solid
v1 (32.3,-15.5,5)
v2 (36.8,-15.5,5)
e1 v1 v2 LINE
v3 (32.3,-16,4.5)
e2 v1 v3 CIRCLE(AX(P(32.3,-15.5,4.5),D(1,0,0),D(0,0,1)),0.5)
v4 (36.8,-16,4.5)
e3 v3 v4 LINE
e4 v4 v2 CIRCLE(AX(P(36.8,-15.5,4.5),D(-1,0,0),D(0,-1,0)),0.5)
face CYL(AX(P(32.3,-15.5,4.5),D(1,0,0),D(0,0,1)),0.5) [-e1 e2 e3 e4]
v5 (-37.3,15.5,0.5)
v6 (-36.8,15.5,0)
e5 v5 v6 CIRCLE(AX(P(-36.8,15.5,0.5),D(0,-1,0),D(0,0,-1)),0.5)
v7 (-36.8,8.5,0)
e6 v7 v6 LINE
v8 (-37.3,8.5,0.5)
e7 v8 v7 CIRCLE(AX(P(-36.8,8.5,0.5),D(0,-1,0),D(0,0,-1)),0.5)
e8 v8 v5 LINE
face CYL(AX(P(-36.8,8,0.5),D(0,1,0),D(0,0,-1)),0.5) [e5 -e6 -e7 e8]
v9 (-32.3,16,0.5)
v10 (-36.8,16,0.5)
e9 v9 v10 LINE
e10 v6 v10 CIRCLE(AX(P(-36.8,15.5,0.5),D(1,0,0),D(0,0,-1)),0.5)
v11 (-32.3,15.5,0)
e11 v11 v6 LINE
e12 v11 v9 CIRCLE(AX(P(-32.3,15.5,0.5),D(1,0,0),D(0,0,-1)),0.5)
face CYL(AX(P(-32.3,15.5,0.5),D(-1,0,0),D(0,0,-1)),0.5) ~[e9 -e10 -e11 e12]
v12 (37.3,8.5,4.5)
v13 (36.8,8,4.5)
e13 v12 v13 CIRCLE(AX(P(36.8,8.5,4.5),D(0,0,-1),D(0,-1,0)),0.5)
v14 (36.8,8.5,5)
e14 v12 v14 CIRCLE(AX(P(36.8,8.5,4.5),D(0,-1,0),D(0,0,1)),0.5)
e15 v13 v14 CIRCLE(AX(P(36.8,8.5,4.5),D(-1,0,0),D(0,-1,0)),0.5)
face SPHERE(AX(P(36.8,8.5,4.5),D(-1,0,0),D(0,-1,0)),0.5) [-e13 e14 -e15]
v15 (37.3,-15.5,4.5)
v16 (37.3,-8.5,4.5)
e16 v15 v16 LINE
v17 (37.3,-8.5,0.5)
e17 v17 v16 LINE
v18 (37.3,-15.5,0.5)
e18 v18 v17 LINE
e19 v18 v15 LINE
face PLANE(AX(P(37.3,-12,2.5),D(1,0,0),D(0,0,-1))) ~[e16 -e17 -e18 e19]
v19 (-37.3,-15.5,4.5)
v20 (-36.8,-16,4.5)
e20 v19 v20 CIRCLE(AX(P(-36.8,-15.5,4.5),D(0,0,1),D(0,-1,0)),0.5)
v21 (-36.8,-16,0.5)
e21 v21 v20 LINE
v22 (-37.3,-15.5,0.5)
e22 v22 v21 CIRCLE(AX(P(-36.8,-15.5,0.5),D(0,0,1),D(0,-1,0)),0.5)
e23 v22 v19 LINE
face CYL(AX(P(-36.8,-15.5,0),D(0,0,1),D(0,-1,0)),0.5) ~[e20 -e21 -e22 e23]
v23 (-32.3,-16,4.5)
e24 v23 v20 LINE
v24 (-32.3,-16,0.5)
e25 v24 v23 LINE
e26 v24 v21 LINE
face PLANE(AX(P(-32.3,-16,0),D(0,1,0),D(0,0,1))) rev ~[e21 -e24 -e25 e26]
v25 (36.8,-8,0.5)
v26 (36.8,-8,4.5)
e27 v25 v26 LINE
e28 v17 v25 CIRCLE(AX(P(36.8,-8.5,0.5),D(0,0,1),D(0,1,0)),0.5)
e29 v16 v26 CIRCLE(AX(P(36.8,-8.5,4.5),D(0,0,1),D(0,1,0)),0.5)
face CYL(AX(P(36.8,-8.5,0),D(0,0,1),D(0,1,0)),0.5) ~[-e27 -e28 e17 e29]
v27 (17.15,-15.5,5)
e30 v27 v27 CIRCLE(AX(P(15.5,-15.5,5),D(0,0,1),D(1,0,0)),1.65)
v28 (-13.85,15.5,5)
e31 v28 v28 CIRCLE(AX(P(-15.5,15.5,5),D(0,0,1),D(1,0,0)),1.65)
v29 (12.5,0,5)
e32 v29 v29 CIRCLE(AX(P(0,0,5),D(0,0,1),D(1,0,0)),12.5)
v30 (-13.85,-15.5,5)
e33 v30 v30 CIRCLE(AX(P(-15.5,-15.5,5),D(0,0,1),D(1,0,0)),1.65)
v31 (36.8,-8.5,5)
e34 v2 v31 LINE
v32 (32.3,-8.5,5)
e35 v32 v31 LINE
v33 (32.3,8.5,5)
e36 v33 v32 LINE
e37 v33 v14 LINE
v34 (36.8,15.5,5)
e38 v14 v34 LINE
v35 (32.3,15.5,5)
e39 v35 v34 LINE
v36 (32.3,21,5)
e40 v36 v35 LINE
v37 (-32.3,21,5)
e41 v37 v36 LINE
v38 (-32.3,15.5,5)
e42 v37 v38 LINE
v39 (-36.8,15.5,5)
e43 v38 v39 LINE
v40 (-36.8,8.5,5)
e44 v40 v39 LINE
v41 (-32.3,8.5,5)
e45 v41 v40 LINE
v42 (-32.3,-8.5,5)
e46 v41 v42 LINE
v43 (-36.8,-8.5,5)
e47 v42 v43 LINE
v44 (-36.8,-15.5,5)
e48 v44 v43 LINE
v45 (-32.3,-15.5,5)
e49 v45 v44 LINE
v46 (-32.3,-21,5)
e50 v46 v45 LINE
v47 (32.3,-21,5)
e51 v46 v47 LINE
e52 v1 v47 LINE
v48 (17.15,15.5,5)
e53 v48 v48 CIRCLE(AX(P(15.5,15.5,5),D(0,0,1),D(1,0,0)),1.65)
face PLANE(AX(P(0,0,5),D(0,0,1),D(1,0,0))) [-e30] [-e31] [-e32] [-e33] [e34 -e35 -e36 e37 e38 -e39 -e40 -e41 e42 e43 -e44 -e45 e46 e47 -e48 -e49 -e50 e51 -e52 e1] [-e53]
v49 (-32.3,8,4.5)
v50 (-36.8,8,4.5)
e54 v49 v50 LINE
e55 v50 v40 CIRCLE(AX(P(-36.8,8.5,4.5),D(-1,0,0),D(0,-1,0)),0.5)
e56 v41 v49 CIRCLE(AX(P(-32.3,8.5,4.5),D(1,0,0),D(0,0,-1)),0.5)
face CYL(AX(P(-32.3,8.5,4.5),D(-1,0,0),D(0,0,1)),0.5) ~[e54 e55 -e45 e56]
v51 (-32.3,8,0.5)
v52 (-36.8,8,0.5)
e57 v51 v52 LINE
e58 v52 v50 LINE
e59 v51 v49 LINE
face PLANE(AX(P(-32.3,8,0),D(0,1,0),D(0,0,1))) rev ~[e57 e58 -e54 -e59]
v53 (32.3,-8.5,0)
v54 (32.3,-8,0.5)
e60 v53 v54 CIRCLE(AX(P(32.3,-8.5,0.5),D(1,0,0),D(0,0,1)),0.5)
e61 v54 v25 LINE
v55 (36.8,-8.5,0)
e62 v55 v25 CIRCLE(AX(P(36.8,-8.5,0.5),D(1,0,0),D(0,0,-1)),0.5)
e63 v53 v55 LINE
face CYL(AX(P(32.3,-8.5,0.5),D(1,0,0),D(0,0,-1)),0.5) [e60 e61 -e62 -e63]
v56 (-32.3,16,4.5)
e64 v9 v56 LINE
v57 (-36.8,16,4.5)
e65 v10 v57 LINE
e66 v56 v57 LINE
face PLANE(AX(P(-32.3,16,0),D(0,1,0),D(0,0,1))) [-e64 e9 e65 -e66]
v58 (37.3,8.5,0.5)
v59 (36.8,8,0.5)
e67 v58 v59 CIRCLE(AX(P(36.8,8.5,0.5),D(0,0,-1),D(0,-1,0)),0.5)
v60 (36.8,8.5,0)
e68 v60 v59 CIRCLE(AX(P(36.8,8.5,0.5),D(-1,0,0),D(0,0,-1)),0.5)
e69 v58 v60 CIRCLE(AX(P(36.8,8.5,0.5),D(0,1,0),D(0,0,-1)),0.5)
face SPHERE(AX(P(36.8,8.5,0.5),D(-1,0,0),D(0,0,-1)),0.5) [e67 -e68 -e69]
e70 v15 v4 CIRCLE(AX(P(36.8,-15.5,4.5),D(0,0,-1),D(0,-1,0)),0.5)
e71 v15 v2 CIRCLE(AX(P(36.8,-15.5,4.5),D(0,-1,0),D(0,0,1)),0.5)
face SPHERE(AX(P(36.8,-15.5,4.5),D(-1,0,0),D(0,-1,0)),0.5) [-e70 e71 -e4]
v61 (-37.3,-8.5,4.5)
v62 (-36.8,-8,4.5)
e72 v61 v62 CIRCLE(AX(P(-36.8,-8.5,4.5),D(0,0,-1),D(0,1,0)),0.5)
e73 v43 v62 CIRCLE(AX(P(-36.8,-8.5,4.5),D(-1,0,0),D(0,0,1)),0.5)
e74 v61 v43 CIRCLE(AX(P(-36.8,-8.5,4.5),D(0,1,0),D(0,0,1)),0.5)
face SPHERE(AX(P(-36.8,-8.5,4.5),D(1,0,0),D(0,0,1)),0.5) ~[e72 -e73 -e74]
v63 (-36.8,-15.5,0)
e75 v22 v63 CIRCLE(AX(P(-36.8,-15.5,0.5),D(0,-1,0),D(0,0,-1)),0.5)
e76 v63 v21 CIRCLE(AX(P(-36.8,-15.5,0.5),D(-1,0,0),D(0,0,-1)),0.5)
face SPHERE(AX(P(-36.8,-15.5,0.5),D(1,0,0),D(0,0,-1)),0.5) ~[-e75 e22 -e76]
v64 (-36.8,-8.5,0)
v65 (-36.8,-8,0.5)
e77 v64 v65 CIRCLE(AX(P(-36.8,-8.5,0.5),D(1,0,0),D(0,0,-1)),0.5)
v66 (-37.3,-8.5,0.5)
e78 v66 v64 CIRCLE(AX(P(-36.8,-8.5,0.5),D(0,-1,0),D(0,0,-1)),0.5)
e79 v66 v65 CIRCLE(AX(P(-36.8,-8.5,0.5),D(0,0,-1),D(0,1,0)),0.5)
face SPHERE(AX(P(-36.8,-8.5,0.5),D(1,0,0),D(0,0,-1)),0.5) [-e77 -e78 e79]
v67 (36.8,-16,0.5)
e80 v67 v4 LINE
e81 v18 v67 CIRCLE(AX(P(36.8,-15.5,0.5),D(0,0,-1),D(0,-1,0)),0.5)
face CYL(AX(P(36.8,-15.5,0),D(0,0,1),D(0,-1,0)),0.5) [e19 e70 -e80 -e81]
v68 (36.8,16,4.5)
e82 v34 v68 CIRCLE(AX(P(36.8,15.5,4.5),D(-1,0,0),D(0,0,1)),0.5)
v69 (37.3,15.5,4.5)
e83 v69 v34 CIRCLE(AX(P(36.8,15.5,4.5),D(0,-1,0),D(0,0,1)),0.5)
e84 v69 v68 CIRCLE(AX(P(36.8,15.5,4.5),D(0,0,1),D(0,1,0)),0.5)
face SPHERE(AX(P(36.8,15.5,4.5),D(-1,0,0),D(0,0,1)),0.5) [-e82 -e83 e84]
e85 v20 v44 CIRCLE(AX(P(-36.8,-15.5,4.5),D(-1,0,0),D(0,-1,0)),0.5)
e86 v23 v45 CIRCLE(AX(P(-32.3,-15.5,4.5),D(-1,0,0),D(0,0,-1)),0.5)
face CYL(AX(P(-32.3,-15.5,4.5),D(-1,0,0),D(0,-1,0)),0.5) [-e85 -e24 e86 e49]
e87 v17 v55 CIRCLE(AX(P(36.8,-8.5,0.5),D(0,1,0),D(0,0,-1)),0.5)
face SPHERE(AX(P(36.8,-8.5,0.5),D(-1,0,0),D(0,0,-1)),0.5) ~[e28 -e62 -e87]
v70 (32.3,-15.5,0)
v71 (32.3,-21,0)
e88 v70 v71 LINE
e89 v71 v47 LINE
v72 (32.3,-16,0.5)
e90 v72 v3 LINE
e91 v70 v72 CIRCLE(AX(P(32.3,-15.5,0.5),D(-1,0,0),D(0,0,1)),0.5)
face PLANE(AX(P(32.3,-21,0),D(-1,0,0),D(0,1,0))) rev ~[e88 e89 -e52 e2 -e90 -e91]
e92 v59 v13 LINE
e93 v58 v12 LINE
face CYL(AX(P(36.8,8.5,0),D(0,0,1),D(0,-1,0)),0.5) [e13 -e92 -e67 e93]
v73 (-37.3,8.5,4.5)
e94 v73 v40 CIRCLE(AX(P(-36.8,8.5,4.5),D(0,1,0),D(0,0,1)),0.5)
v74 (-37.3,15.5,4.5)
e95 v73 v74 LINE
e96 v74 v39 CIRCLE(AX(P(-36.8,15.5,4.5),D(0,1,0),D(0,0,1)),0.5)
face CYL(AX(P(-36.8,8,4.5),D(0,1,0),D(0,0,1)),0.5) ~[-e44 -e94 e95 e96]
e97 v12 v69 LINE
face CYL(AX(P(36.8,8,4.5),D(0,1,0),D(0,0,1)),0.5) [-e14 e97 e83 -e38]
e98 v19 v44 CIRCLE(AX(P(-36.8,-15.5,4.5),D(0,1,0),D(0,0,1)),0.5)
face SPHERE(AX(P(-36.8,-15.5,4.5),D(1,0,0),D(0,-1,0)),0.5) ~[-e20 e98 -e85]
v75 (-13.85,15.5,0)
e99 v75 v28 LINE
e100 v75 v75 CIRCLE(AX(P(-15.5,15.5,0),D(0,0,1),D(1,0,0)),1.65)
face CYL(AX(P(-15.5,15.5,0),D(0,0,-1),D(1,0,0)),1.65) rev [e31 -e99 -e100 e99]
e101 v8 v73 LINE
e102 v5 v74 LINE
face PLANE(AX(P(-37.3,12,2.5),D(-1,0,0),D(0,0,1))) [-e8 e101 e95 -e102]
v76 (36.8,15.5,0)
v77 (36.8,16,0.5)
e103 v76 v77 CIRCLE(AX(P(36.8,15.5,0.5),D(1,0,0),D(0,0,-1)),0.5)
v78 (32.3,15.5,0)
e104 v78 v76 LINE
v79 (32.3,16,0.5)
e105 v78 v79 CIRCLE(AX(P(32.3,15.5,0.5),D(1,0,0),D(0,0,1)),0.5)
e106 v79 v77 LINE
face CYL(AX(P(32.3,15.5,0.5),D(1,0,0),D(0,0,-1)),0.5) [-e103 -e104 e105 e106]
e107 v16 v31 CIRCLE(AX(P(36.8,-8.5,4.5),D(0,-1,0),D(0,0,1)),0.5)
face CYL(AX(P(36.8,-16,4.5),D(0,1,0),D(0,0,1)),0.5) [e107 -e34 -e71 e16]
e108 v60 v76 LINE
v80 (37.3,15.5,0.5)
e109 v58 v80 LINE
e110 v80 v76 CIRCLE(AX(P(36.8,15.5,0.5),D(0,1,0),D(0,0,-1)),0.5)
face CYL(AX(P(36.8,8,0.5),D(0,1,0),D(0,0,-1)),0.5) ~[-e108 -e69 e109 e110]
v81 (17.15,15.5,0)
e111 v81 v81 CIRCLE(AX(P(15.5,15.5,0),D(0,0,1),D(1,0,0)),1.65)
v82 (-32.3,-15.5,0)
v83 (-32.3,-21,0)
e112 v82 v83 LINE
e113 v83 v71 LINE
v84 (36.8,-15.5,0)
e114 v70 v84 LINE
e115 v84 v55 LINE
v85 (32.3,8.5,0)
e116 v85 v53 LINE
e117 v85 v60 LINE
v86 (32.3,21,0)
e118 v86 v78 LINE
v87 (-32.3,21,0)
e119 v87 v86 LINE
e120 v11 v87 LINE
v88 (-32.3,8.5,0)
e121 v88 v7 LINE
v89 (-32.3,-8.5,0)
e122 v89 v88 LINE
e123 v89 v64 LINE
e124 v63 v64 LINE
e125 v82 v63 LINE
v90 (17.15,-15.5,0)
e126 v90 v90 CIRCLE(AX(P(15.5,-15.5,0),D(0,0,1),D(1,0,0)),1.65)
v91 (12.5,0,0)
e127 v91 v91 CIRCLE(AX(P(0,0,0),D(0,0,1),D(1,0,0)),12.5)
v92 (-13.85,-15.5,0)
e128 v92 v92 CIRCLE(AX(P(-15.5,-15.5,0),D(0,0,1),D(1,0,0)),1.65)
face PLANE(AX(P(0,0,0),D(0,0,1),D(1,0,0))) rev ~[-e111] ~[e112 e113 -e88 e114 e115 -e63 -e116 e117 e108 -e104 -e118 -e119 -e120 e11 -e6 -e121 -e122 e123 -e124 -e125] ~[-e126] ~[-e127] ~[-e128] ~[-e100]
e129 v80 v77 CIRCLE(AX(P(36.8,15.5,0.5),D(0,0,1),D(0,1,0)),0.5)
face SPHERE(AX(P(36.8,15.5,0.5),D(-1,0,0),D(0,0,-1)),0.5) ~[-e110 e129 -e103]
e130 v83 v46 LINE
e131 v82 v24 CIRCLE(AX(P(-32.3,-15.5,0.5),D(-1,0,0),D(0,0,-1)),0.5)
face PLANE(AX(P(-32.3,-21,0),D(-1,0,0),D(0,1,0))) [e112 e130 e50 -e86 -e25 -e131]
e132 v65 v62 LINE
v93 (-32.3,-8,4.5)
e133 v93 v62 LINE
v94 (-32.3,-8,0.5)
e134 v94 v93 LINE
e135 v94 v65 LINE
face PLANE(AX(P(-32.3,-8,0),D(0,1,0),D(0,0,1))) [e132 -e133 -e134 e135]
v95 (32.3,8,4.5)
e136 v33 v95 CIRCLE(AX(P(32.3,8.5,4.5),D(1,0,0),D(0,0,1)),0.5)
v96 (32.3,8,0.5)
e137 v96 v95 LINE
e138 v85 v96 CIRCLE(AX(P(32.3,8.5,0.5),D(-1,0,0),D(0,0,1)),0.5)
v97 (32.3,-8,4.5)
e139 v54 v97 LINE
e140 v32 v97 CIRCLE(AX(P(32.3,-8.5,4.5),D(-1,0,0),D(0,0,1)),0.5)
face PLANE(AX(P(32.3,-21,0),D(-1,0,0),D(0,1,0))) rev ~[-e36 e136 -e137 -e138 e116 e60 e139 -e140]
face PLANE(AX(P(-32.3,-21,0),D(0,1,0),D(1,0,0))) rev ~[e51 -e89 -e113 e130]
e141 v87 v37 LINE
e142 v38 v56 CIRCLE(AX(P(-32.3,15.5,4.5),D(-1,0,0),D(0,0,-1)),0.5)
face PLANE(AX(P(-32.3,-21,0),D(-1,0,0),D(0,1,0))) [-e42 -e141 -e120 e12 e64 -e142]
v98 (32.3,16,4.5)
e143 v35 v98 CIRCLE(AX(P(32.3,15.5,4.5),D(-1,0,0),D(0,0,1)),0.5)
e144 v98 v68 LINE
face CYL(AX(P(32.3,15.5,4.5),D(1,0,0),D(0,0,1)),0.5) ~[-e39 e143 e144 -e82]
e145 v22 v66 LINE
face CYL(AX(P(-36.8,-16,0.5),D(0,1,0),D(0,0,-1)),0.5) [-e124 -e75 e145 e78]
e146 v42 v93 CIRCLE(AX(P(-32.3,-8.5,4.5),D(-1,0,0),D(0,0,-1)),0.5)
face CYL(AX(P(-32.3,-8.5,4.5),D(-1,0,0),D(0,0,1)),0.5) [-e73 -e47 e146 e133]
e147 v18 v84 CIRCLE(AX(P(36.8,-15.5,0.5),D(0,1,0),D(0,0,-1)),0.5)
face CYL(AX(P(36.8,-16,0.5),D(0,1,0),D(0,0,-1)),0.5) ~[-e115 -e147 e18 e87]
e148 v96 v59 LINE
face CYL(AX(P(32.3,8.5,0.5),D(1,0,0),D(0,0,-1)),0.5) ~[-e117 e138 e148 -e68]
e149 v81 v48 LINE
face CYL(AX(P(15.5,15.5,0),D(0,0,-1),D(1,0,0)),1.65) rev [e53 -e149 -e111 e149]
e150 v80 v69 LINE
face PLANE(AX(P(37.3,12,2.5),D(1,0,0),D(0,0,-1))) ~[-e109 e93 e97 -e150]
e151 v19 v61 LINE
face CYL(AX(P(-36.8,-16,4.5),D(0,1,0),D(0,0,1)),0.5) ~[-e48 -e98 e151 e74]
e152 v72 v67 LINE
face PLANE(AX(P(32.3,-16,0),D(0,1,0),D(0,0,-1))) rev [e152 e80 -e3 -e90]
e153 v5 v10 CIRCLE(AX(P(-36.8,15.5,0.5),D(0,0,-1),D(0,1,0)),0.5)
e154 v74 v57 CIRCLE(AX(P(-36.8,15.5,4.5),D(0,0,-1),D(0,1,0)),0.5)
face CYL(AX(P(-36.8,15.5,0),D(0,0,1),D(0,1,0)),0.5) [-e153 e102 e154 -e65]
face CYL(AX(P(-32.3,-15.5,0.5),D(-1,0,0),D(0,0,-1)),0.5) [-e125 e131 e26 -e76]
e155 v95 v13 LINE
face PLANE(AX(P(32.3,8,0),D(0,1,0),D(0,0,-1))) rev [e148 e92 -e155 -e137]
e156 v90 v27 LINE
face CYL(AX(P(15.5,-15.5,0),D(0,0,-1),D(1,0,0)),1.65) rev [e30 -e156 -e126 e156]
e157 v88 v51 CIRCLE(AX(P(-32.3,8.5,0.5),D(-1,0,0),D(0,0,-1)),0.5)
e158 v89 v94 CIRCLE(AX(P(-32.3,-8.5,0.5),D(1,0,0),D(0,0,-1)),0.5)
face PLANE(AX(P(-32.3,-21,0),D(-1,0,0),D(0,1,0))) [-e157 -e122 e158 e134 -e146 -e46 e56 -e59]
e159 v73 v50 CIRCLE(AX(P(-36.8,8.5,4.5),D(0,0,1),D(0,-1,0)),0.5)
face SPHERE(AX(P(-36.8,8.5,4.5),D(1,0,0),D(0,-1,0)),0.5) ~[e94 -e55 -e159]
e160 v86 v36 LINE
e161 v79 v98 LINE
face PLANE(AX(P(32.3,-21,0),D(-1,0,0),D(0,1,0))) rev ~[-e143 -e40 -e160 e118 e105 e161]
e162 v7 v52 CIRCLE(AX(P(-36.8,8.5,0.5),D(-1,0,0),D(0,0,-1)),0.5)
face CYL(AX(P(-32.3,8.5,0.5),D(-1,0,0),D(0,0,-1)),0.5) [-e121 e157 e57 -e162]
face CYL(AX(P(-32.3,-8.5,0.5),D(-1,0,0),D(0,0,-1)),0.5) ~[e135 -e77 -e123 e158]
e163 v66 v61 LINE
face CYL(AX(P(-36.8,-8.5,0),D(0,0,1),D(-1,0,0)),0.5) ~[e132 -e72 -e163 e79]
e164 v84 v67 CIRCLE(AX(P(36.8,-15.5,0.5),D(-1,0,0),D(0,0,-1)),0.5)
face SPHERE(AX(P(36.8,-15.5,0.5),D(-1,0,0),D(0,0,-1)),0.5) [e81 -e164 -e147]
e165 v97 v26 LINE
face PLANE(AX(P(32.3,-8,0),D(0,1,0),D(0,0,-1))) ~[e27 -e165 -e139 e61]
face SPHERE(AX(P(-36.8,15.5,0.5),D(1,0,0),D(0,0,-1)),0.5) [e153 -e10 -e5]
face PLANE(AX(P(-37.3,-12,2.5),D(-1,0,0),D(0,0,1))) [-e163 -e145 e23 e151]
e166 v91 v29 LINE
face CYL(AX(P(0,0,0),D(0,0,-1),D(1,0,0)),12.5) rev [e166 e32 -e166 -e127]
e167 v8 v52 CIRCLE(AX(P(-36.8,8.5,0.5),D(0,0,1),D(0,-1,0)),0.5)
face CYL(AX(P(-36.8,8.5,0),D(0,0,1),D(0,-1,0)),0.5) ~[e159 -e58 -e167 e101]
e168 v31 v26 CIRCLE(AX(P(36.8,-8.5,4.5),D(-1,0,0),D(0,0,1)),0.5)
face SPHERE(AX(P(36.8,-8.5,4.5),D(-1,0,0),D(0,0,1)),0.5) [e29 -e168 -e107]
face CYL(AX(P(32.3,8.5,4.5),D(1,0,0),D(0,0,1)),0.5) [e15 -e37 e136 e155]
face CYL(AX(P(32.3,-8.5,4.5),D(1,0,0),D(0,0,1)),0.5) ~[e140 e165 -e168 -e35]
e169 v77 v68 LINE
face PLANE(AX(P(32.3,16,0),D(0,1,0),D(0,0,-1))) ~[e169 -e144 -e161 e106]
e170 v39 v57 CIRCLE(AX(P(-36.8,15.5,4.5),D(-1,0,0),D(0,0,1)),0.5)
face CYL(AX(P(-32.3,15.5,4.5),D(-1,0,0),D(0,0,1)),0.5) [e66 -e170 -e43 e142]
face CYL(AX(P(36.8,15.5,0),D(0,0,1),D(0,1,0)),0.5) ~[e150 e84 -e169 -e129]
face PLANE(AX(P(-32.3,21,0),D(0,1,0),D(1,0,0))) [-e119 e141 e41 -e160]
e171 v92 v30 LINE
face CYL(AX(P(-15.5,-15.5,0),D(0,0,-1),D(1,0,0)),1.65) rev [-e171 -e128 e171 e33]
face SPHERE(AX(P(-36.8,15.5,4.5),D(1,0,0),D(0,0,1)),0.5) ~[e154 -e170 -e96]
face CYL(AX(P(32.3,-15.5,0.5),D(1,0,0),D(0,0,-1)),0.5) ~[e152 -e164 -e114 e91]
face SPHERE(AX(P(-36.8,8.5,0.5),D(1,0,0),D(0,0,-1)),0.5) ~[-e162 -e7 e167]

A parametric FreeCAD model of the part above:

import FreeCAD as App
import Part
import Sketcher

V = App.Vector


def edges_at(feature, points):
    """Names of the edges that pass closest to the given points."""
    edges = feature.Shape.Edges
    near = lambda p: min(range(len(edges)), key=lambda i: edges[i].distToShape(Part.Vertex(*p))[0])
    return sorted({f"Edge{near(p) + 1}" for p in points})

doc = App.newDocument("Part")
body = doc.addObject("PartDesign::Body", "Body")

sketch1 = body.newObject("Sketcher::SketchObject", "Sketch")
sketch1.AttachmentSupport = (doc.getObject("XY_Plane"), [""])
sketch1.MapMode = "FlatFace"
sketch1.addGeometry([
    Part.LineSegment(V(-32.3, 21, 0), V(-32.3, -21, 0)),
    Part.LineSegment(V(-32.3, -21, 0), V(32.3, -21, 0)),
    Part.LineSegment(V(32.3, -21, 0), V(32.3, 21, 0)),
    Part.LineSegment(V(32.3, 21, 0), V(-32.3, 21, 0)),
    Part.Circle(V(-15.5, -15.5, 0), V(0, 0, 1), 1.65),
    Part.Circle(V(15.5, -15.5, 0), V(0, 0, 1), 1.65),
    Part.Circle(V(-15.5, 15.5, 0), V(0, 0, 1), 1.65),
    Part.Circle(V(0, 0, 0), V(0, 0, 1), 12.5),
    Part.Circle(V(15.5, 15.5, 0), V(0, 0, 1), 1.65),
], False)
sketch1.addConstraint([
    Sketcher.Constraint("Coincident", 0, 2, 1, 1),
    Sketcher.Constraint("Coincident", 1, 2, 2, 1),
    Sketcher.Constraint("Coincident", 2, 2, 3, 1),
    Sketcher.Constraint("Coincident", 3, 2, 0, 1),
    Sketcher.Constraint("Vertical", 0),
    Sketcher.Constraint("Horizontal", 1),
    Sketcher.Constraint("Vertical", 2),
    Sketcher.Constraint("Horizontal", 3),
    Sketcher.Constraint("Coincident", 7, 3, -1, 1),
    Sketcher.Constraint("Equal", 4, 5),
    Sketcher.Constraint("Equal", 5, 6),
    Sketcher.Constraint("Equal", 6, 8),
    Sketcher.Constraint("Symmetric", 5, 3, 6, 3, -1, 1),
    Sketcher.Constraint("Symmetric", 4, 3, 8, 3, -1, 1),
    Sketcher.Constraint("Symmetric", 0, 2, 2, 2, -1, 1),
    Sketcher.Constraint("Symmetric", 4, 3, 5, 3, -2),
    Sketcher.Constraint("Diameter", 7, 25.0),
    Sketcher.Constraint("Diameter", 4, 3.3),
    Sketcher.Constraint("DistanceY", 0, 2, 0, 1, 42.0),
    Sketcher.Constraint("DistanceX", 1, 1, 1, 2, 64.6),
    Sketcher.Constraint("DistanceX", 4, 3, 5, 3, 31.0),
    Sketcher.Constraint("DistanceY", 4, 3, 6, 3, 31.0),
])
pad1 = body.newObject("PartDesign::Pad", "Pad")
pad1.Profile = sketch1
pad1.Length = 5

sketch2 = body.newObject("Sketcher::SketchObject", "Sketch001")
sketch2.AttachmentSupport = (doc.getObject("YZ_Plane"), [""])
sketch2.MapMode = "FlatFace"
sketch2.AttachmentOffset = App.Placement(V(0, 0, -32.3), App.Rotation())
sketch2.addGeometry([
    Part.LineSegment(V(16, 0, 0), V(8, 0, 0)),
    Part.LineSegment(V(8, 0, 0), V(8, 5, 0)),
    Part.LineSegment(V(8, 5, 0), V(16, 5, 0)),
    Part.LineSegment(V(16, 5, 0), V(16, 0, 0)),
    Part.LineSegment(V(-8, 0, 0), V(-16, 0, 0)),
    Part.LineSegment(V(-16, 0, 0), V(-16, 5, 0)),
    Part.LineSegment(V(-16, 5, 0), V(-8, 5, 0)),
    Part.LineSegment(V(-8, 5, 0), V(-8, 0, 0)),
], False)
sketch2.addConstraint([
    Sketcher.Constraint("Coincident", 0, 2, 1, 1),
    Sketcher.Constraint("Coincident", 1, 2, 2, 1),
    Sketcher.Constraint("Coincident", 2, 2, 3, 1),
    Sketcher.Constraint("Coincident", 3, 2, 0, 1),
    Sketcher.Constraint("Coincident", 4, 2, 5, 1),
    Sketcher.Constraint("Coincident", 5, 2, 6, 1),
    Sketcher.Constraint("Coincident", 6, 2, 7, 1),
    Sketcher.Constraint("Coincident", 7, 2, 4, 1),
    Sketcher.Constraint("Horizontal", 0),
    Sketcher.Constraint("Vertical", 1),
    Sketcher.Constraint("Horizontal", 2),
    Sketcher.Constraint("Vertical", 3),
    Sketcher.Constraint("Horizontal", 4),
    Sketcher.Constraint("Vertical", 5),
    Sketcher.Constraint("Horizontal", 6),
    Sketcher.Constraint("Vertical", 7),
    Sketcher.Constraint("Symmetric", 3, 2, 4, 2, -1, 1),
    Sketcher.Constraint("Symmetric", 1, 2, 6, 2, -2),
    Sketcher.Constraint("PointOnObject", 0, 2, -1),
    Sketcher.Constraint("DistanceX", 0, 2, 0, 1, 8.0),
    Sketcher.Constraint("DistanceY", 1, 1, 1, 2, 5.0),
    Sketcher.Constraint("DistanceX", -1, 1, 0, 2, 8.0),
])
pad2 = body.newObject("PartDesign::Pad", "Pad001")
pad2.Profile = sketch2
pad2.Length = 5
pad2.Reversed = True
doc.recompute()

fillet = body.newObject("PartDesign::Fillet", "Fillet")
fillet.Base = (pad2, edges_at(pad2, [
    (-34.8, 16, 0),
    (-34.8, 8, 0),
    (-34.8, 8, 5),
    (-34.8, 16, 5),
    (-37.3, 12, 0),
    (-37.3, 8, 2.5),
    (-37.3, 12, 5),
    (-37.3, 16, 2.5),
    (-34.8, -8, 0),
    (-34.8, -16, 0),
    (-34.8, -16, 5),
    (-34.8, -8, 5),
    (-37.3, -12, 0),
    (-37.3, -16, 2.5),
    (-37.3, -12, 5),
    (-37.3, -8, 2.5),
]))
fillet.Radius = 0.5
doc.recompute()

mirrored = body.newObject("PartDesign::Mirrored", "Mirrored")
mirrored.Originals = [pad2]
mirrored.MirrorPlane = (doc.getObject("YZ_Plane"), [""])
body.Tip = mirrored
doc.recompute()

fillet2 = body.newObject("PartDesign::Fillet", "Fillet001")
fillet2.Base = (mirrored, edges_at(mirrored, [
    (34.8, 16, 0),
    (34.8, 8, 0),
    (34.8, 8, 5),
    (34.8, 16, 5),
    (37.3, 12, 0),
    (37.3, 8, 2.5),
    (37.3, 12, 5),
    (37.3, 16, 2.5),
    (34.8, -8, 0),
    (34.8, -16, 0),
    (34.8, -16, 5),
    (34.8, -8, 5),
    (37.3, -12, 0),
    (37.3, -16, 2.5),
    (37.3, -12, 5),
    (37.3, -8, 2.5),
]))
fillet2.Radius = 0.5

doc.recompute()
